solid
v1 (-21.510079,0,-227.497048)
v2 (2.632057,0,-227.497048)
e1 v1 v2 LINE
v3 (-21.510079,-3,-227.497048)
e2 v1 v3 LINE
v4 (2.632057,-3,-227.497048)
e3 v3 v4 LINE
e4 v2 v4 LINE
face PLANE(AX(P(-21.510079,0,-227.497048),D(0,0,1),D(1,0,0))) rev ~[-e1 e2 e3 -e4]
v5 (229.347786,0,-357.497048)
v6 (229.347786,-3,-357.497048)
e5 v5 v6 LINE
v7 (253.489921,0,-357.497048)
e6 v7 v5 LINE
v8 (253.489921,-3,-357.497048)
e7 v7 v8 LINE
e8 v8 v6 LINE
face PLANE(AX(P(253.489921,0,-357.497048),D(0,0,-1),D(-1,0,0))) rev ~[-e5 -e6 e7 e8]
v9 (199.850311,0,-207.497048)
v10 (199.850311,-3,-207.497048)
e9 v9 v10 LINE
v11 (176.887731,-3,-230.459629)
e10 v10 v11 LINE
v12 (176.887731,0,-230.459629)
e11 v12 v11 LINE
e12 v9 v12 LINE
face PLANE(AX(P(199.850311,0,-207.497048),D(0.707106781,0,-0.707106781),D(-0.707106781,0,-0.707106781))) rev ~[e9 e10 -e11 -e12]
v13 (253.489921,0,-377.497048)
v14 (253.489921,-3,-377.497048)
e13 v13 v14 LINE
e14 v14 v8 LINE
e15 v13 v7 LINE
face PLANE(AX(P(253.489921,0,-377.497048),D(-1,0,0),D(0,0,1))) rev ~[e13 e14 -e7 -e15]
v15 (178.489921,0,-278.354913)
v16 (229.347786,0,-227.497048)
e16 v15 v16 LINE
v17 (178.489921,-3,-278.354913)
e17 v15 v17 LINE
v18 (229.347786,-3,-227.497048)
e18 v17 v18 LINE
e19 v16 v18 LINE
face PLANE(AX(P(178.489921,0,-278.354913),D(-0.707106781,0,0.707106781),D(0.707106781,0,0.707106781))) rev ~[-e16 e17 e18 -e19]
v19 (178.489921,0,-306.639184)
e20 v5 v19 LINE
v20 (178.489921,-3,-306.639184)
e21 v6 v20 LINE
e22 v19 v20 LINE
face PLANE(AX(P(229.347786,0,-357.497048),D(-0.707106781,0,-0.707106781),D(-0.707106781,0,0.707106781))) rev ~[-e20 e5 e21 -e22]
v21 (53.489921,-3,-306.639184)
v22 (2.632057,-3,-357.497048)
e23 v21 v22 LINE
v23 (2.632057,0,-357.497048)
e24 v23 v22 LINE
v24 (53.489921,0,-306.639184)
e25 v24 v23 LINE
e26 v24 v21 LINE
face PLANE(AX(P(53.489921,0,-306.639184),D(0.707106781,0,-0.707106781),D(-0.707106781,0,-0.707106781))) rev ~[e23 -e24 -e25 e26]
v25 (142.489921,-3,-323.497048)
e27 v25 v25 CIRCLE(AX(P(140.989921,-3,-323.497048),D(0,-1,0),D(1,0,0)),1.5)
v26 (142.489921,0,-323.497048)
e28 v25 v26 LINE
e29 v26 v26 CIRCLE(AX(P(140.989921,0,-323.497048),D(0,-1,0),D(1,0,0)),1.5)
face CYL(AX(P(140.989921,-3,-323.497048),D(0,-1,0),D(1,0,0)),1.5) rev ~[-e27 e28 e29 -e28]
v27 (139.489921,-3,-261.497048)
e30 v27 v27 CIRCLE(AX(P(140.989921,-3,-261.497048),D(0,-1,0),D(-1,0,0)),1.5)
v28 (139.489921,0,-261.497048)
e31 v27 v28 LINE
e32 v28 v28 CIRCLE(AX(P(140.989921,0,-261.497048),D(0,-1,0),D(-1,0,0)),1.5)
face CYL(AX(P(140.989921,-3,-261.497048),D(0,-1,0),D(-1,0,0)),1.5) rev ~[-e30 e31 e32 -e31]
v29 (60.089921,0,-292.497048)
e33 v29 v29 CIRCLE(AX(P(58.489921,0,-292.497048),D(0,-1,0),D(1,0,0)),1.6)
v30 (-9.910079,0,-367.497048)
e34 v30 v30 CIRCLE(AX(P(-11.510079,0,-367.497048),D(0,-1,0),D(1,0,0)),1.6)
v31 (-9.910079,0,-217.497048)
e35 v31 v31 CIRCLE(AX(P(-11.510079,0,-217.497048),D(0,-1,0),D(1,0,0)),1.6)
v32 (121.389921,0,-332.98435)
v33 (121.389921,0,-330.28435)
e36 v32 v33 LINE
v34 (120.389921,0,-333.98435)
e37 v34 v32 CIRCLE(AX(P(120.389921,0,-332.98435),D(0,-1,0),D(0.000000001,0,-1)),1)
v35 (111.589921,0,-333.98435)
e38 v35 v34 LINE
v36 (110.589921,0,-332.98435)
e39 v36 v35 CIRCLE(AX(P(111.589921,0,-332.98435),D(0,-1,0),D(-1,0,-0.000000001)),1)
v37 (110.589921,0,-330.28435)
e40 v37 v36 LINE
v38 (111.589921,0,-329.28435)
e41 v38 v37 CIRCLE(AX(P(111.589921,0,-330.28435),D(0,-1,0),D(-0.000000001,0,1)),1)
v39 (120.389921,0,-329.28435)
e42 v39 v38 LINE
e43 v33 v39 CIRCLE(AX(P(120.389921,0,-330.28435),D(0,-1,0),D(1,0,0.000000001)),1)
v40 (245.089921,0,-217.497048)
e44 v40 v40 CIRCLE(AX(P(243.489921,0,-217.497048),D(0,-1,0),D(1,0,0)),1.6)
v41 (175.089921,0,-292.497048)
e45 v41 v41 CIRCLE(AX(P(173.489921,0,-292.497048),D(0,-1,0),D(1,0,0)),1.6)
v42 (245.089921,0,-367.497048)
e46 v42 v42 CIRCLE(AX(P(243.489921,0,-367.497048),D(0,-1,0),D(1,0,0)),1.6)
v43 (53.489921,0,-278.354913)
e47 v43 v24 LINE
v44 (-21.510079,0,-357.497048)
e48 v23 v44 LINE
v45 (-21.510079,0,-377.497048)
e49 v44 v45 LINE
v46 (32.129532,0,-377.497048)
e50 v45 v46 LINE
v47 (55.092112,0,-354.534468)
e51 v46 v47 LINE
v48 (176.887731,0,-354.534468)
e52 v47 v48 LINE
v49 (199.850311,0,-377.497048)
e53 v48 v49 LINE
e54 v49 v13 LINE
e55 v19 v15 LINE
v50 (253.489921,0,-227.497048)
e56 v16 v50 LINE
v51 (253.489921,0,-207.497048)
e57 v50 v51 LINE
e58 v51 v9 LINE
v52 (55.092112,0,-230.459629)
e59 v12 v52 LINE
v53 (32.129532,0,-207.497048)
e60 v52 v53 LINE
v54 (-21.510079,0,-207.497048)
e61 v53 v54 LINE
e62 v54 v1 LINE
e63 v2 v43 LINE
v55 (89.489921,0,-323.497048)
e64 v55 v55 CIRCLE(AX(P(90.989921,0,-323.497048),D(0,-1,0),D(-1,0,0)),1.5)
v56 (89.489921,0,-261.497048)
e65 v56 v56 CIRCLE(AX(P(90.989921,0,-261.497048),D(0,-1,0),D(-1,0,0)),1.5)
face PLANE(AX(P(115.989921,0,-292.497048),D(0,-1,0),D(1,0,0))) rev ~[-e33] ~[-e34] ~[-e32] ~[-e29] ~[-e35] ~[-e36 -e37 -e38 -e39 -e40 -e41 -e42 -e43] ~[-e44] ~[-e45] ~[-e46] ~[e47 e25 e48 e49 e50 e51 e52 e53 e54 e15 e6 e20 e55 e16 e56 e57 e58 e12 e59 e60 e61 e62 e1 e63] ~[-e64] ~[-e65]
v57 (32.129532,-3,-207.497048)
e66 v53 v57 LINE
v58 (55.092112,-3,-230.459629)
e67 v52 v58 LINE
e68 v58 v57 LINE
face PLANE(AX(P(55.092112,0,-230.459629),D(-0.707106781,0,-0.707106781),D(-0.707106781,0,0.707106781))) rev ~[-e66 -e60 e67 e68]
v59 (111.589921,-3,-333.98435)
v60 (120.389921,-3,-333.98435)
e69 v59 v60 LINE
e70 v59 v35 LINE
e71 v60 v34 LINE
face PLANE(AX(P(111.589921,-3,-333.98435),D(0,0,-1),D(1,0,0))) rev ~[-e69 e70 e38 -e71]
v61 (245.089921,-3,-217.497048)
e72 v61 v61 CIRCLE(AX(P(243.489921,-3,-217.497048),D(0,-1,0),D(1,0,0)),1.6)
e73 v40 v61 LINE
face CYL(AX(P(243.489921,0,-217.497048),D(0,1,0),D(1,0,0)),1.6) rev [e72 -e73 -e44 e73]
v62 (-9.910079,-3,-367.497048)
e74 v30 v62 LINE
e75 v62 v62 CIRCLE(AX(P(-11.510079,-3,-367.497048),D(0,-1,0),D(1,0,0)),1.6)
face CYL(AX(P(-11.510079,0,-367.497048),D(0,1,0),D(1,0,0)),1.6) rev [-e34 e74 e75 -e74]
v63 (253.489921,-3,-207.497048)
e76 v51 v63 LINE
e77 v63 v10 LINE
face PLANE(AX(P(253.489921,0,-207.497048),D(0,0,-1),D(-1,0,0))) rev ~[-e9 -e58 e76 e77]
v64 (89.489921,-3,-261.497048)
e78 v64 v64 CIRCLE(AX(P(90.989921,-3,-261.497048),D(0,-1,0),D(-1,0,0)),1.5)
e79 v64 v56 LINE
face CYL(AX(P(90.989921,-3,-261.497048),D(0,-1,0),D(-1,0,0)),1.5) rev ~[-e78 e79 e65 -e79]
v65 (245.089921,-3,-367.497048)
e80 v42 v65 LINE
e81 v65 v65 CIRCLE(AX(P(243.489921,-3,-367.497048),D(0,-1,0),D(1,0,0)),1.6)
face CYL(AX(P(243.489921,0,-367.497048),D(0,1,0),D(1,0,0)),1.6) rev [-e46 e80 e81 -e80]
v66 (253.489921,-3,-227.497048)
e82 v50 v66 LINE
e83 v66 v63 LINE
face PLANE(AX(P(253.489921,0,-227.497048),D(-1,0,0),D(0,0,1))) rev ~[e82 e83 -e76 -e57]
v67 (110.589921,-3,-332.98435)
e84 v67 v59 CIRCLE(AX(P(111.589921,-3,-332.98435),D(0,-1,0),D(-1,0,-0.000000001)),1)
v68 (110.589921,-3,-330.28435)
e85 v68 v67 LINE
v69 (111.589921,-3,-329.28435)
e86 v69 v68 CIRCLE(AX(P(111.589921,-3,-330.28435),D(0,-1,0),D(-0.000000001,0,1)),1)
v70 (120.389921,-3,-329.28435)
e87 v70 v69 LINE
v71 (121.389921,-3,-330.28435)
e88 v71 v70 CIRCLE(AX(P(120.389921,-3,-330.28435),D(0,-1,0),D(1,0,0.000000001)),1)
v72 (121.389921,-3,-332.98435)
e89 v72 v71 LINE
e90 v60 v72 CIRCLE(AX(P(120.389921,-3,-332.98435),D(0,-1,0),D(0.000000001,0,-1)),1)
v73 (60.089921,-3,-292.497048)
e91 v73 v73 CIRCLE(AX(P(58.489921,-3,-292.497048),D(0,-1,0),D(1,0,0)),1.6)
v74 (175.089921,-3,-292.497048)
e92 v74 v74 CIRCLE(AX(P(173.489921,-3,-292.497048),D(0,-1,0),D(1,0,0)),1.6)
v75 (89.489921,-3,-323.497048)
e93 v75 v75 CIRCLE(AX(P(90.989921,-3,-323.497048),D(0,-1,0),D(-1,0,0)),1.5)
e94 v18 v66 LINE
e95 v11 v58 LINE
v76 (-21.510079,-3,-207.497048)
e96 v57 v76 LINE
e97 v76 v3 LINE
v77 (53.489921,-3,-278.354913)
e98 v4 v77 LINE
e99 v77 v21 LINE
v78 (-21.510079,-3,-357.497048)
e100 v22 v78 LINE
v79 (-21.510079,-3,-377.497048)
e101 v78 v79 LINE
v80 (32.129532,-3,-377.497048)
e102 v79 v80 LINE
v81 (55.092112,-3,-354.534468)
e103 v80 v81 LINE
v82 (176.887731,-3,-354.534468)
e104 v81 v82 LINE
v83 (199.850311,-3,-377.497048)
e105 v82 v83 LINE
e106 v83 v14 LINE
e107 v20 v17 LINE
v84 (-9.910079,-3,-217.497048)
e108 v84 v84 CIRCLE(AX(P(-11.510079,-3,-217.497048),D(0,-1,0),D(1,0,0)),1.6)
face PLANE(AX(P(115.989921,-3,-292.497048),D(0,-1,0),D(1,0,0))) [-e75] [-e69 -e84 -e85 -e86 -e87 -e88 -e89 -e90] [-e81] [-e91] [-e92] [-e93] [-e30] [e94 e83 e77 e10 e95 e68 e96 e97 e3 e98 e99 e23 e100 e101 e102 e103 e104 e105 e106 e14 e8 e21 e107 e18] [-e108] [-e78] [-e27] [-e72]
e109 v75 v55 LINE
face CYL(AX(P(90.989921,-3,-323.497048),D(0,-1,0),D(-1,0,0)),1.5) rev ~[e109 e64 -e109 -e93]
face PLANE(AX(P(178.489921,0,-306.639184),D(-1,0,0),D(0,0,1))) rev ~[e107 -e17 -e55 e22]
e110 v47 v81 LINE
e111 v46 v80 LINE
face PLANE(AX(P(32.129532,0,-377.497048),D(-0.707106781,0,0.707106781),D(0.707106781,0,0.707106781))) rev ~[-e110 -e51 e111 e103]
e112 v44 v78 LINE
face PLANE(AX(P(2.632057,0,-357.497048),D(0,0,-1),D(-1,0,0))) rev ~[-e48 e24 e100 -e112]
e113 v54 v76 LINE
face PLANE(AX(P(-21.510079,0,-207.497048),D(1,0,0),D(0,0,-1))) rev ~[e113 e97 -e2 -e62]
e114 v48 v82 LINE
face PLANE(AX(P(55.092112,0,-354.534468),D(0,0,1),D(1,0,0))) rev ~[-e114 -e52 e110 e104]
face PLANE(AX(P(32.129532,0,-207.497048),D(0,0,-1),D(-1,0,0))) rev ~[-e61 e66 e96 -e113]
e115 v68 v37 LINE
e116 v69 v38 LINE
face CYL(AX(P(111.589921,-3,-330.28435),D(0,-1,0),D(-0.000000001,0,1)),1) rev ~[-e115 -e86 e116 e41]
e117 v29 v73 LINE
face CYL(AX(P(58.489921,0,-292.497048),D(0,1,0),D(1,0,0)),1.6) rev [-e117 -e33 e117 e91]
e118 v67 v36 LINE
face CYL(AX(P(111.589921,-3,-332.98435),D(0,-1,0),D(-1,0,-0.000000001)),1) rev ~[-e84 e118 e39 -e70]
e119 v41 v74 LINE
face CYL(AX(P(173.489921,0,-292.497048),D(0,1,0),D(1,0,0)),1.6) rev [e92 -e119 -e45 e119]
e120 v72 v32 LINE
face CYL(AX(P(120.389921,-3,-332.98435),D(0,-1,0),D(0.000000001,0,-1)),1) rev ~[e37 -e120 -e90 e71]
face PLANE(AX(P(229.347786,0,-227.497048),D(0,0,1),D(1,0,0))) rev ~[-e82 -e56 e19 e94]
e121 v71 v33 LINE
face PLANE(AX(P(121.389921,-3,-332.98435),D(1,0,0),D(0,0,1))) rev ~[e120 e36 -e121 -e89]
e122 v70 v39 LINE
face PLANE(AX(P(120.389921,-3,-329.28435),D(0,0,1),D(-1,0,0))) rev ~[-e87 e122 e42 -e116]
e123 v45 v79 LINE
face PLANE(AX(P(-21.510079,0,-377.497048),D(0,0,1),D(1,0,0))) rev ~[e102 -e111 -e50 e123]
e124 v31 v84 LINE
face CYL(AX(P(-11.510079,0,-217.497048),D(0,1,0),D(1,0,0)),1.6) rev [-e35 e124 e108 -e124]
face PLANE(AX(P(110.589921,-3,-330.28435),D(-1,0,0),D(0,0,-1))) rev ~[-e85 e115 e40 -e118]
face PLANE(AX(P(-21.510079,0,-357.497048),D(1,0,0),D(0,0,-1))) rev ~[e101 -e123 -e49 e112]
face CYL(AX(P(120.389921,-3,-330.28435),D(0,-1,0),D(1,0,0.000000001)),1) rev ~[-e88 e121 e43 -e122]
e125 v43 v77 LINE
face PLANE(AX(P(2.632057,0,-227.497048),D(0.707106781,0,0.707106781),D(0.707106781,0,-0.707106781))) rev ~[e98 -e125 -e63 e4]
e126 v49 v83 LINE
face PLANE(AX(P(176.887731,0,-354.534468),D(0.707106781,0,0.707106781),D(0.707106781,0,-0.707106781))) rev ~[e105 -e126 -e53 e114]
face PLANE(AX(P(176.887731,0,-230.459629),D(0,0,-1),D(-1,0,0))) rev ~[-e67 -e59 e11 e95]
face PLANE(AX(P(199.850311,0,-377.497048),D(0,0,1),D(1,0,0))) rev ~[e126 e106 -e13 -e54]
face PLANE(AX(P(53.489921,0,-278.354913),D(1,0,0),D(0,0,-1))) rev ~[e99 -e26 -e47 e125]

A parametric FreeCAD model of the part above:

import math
import FreeCAD as App
import Part
import Sketcher

V = App.Vector


def add_polygon(sketch, points):
    """Adds a closed chain of lines whose ends are joined by coincident constraints."""
    first, n = sketch.GeometryCount, len(points)
    for a, b in zip(points, points[1:] + points[:1]):
        sketch.addGeometry(Part.LineSegment(App.Vector(*a, 0), App.Vector(*b, 0)), False)
    for i in range(n):
        sketch.addConstraint(Sketcher.Constraint("Coincident", first + i, 2, first + (i + 1) % n, 1))

doc = App.newDocument("Part")
body = doc.addObject("PartDesign::Body", "Body")

sketch1 = body.newObject("Sketcher::SketchObject", "Sketch")
sketch1.AttachmentSupport = (doc.getObject("XZ_Plane"), [""])
sketch1.MapMode = "FlatFace"
add_polygon(sketch1, [(-21.5, -227.5), (2.6, -227.5), (53.5, -278.4), (53.5, -306.6), (2.6, -357.5), (-21.5, -357.5), (-21.5, -377.5), (32.1, -377.5), (55.1, -354.5), (176.9, -354.5), (199.9, -377.5), (253.5, -377.5), (253.5, -357.5), (229.3, -357.5), (178.5, -306.6), (178.5, -278.4), (229.3, -227.5), (253.5, -227.5), (253.5, -207.5), (199.9, -207.5), (176.9, -230.5), (55.1, -230.5), (32.1, -207.5), (-21.5, -207.5)])
sketch1.addGeometry(Part.Circle(V(-11.5, -367.5, 0), V(0, 0, 1), 1.6), False)
sketch1.addGeometry(Part.Circle(V(58.5, -292.5, 0), V(0, 0, 1), 1.6), False)
sketch1.addGeometry(Part.Circle(V(243.5, -367.5, 0), V(0, 0, 1), 1.6), False)
sketch1.addGeometry(Part.Circle(V(173.5, -292.5, 0), V(0, 0, 1), 1.6), False)
sketch1.addGeometry(Part.Circle(V(-11.5, -217.5, 0), V(0, 0, 1), 1.6), False)
sketch1.addGeometry(Part.Circle(V(243.5, -217.5, 0), V(0, 0, 1), 1.6), False)
sketch1.addConstraint([
    Sketcher.Constraint("Horizontal", 0),
    Sketcher.Constraint("Vertical", 2),
    Sketcher.Constraint("Horizontal", 4),
    Sketcher.Constraint("Vertical", 5),
    Sketcher.Constraint("Horizontal", 6),
    Sketcher.Constraint("Horizontal", 8),
    Sketcher.Constraint("Horizontal", 10),
    Sketcher.Constraint("Vertical", 11),
    Sketcher.Constraint("Horizontal", 12),
    Sketcher.Constraint("Vertical", 14),
    Sketcher.Constraint("Horizontal", 16),
    Sketcher.Constraint("Vertical", 17),
    Sketcher.Constraint("Horizontal", 18),
    Sketcher.Constraint("Horizontal", 20),
    Sketcher.Constraint("Horizontal", 22),
    Sketcher.Constraint("Vertical", 23),
    Sketcher.Constraint("Equal", 24, 25),
    Sketcher.Constraint("Equal", 25, 26),
    Sketcher.Constraint("Equal", 26, 27),
    Sketcher.Constraint("Equal", 27, 28),
    Sketcher.Constraint("Equal", 28, 29),
    Sketcher.Constraint("Perpendicular", 1, 3),
    Sketcher.Constraint("Parallel", 3, 7),
    Sketcher.Constraint("Perpendicular", 7, 9),
    Sketcher.Constraint("Parallel", 9, 13),
    Sketcher.Constraint("Perpendicular", 13, 15),
    Sketcher.Constraint("Parallel", 15, 19),
    Sketcher.Constraint("Perpendicular", 19, 21),
    Sketcher.Constraint("Horizontal", 24, 3, 26, 3),
    Sketcher.Constraint("Horizontal", 25, 3, 27, 3),
    Sketcher.Constraint("Horizontal", 28, 3, 29, 3),
    Sketcher.Constraint("Horizontal", 6, 2, 9, 2),
    Sketcher.Constraint("Horizontal", 4, 2, 11, 2),
    Sketcher.Constraint("Horizontal", 2, 2, 13, 2),
    Sketcher.Constraint("Horizontal", 1, 2, 14, 2),
    Sketcher.Constraint("Horizontal", 0, 2, 15, 2),
    Sketcher.Constraint("Horizontal", 18, 2, 21, 2),
    Sketcher.Constraint("Vertical", 24, 3, 28, 3),
    Sketcher.Constraint("Vertical", 26, 3, 29, 3),
    Sketcher.Constraint("Vertical", 0, 2, 3, 2),
    Sketcher.Constraint("Vertical", 12, 2, 15, 2),
    Sketcher.Constraint("Vertical", 11, 2, 16, 2),
    Sketcher.Constraint("Vertical", 9, 2, 18, 2),
    Sketcher.Constraint("Vertical", 8, 2, 19, 2),
    Sketcher.Constraint("Vertical", 7, 2, 20, 2),
    Sketcher.Constraint("Vertical", 5, 2, 22, 2),
    Sketcher.Constraint("Equal", 6, 10),
    Sketcher.Constraint("Equal", 4, 12),
    Sketcher.Constraint("Equal", 11, 17),
    Sketcher.Constraint("Diameter", 24, 3.2),
    Sketcher.Constraint("DistanceY", 5, 2, 5, 1, 20.0),
    Sketcher.Constraint("DistanceX", 24, 3, 25, 3, 70.0),
    Sketcher.Constraint("DistanceY", 24, 3, 25, 3, 75.0),
    Sketcher.Constraint("DistanceX", 25, 3, 26, 3, 185.0),
    Sketcher.Constraint("DistanceX", 27, 3, 26, 3, 70.0),
    Sketcher.Constraint("DistanceY", 25, 3, 28, 3, 75.0),
    Sketcher.Constraint("DistanceY", 0, 2, 28, 3, 10.0),
    Sketcher.Constraint("DistanceX", 1, 2, 25, 3, 5.0),
    Sketcher.Constraint("DistanceY", 24, 3, 3, 2, 10.0),
    Sketcher.Constraint("DistanceX", 4, 2, 24, 3, 10.0),
    Sketcher.Constraint("DistanceX", 26, 3, 10, 2, 10.0),
    Sketcher.Constraint("DistanceX", 6, 1, 6, 2, 53.63961),
    Sketcher.Constraint("DistanceX", 8, 1, 8, 2, 121.795619),
    Sketcher.Constraint("DistanceY", 2, 2, 2, 1, 28.284271),
    Sketcher.Constraint("DistanceX", 24, 3, -1, 1, 11.510079),
    Sketcher.Constraint("DistanceY", 24, 3, -1, 1, 367.497048),
])
pad1 = body.newObject("PartDesign::Pad", "Pad")
pad1.Profile = sketch1
pad1.Length = 3

sketch2 = body.newObject("Sketcher::SketchObject", "Sketch001")
sketch2.AttachmentSupport = (doc.getObject("XZ_Plane"), [""])
sketch2.MapMode = "FlatFace"
sketch2.AttachmentOffset = App.Placement(V(0, 0, 3), App.Rotation())
sketch2.addGeometry([
    Part.LineSegment(V(121.4, -333, 0), V(121.4, -330.3, 0)),
    Part.ArcOfCircle(Part.Circle(V(120.4, -330.3, 0), V(0, 0, 1), 1), math.radians(0), math.radians(90)),
    Part.LineSegment(V(120.4, -329.3, 0), V(111.6, -329.3, 0)),
    Part.ArcOfCircle(Part.Circle(V(111.6, -330.3, 0), V(0, 0, 1), 1), math.radians(90), math.radians(180)),
    Part.LineSegment(V(110.6, -330.3, 0), V(110.6, -333, 0)),
    Part.ArcOfCircle(Part.Circle(V(111.6, -333, 0), V(0, 0, 1), 1), math.radians(-180), math.radians(-90)),
    Part.LineSegment(V(111.6, -334, 0), V(120.4, -334, 0)),
    Part.ArcOfCircle(Part.Circle(V(120.4, -333, 0), V(0, 0, 1), 1), math.radians(-90), math.radians(0)),
    Part.Circle(V(141, -261.5, 0), V(0, 0, 1), 1.5),
    Part.Circle(V(141, -323.5, 0), V(0, 0, 1), 1.5),
    Part.Circle(V(91, -261.5, 0), V(0, 0, 1), 1.5),
    Part.Circle(V(91, -323.5, 0), V(0, 0, 1), 1.5),
], False)
sketch2.addConstraint([
    Sketcher.Constraint("Tangent", 0, 2, 1, 1),
    Sketcher.Constraint("Tangent", 1, 2, 2, 1),
    Sketcher.Constraint("Tangent", 2, 2, 3, 1),
    Sketcher.Constraint("Tangent", 3, 2, 4, 1),
    Sketcher.Constraint("Tangent", 4, 2, 5, 1),
    Sketcher.Constraint("Tangent", 5, 2, 6, 1),
    Sketcher.Constraint("Tangent", 6, 2, 7, 1),
    Sketcher.Constraint("Tangent", 7, 2, 0, 1),
    Sketcher.Constraint("Vertical", 0),
    Sketcher.Constraint("Horizontal", 2),
    Sketcher.Constraint("Vertical", 4),
    Sketcher.Constraint("Horizontal", 6),
    Sketcher.Constraint("Equal", 1, 3),
    Sketcher.Constraint("Equal", 3, 5),
    Sketcher.Constraint("Equal", 5, 7),
    Sketcher.Constraint("Equal", 8, 9),
    Sketcher.Constraint("Equal", 9, 10),
    Sketcher.Constraint("Equal", 10, 11),
    Sketcher.Constraint("Horizontal", 8, 3, 10, 3),
    Sketcher.Constraint("Horizontal", 9, 3, 11, 3),
    Sketcher.Constraint("Vertical", 8, 3, 9, 3),
    Sketcher.Constraint("Vertical", 10, 3, 11, 3),
    Sketcher.Constraint("Diameter", 8, 3.0),
    Sketcher.Constraint("Radius", 1, 1.0),
    Sketcher.Constraint("DistanceX", 2, 2, 2, 1, 8.8),
    Sketcher.Constraint("DistanceY", 0, 1, 0, 2, 2.7),
    Sketcher.Constraint("DistanceY", 9, 3, 8, 3, 62.0),
    Sketcher.Constraint("DistanceX", 10, 3, 8, 3, 50.0),
    Sketcher.Constraint("DistanceX", 1, 3, 8, 3, 20.6),
    Sketcher.Constraint("DistanceY", 1, 3, 8, 3, 68.787302),
    Sketcher.Constraint("DistanceX", -1, 1, 1, 3, 120.389921),
    Sketcher.Constraint("DistanceY", 1, 3, -1, 1, 330.28435),
])
pocket1 = body.newObject("PartDesign::Pocket", "Pocket")
pocket1.Profile = sketch2
pocket1.Length = 3

doc.recompute()
